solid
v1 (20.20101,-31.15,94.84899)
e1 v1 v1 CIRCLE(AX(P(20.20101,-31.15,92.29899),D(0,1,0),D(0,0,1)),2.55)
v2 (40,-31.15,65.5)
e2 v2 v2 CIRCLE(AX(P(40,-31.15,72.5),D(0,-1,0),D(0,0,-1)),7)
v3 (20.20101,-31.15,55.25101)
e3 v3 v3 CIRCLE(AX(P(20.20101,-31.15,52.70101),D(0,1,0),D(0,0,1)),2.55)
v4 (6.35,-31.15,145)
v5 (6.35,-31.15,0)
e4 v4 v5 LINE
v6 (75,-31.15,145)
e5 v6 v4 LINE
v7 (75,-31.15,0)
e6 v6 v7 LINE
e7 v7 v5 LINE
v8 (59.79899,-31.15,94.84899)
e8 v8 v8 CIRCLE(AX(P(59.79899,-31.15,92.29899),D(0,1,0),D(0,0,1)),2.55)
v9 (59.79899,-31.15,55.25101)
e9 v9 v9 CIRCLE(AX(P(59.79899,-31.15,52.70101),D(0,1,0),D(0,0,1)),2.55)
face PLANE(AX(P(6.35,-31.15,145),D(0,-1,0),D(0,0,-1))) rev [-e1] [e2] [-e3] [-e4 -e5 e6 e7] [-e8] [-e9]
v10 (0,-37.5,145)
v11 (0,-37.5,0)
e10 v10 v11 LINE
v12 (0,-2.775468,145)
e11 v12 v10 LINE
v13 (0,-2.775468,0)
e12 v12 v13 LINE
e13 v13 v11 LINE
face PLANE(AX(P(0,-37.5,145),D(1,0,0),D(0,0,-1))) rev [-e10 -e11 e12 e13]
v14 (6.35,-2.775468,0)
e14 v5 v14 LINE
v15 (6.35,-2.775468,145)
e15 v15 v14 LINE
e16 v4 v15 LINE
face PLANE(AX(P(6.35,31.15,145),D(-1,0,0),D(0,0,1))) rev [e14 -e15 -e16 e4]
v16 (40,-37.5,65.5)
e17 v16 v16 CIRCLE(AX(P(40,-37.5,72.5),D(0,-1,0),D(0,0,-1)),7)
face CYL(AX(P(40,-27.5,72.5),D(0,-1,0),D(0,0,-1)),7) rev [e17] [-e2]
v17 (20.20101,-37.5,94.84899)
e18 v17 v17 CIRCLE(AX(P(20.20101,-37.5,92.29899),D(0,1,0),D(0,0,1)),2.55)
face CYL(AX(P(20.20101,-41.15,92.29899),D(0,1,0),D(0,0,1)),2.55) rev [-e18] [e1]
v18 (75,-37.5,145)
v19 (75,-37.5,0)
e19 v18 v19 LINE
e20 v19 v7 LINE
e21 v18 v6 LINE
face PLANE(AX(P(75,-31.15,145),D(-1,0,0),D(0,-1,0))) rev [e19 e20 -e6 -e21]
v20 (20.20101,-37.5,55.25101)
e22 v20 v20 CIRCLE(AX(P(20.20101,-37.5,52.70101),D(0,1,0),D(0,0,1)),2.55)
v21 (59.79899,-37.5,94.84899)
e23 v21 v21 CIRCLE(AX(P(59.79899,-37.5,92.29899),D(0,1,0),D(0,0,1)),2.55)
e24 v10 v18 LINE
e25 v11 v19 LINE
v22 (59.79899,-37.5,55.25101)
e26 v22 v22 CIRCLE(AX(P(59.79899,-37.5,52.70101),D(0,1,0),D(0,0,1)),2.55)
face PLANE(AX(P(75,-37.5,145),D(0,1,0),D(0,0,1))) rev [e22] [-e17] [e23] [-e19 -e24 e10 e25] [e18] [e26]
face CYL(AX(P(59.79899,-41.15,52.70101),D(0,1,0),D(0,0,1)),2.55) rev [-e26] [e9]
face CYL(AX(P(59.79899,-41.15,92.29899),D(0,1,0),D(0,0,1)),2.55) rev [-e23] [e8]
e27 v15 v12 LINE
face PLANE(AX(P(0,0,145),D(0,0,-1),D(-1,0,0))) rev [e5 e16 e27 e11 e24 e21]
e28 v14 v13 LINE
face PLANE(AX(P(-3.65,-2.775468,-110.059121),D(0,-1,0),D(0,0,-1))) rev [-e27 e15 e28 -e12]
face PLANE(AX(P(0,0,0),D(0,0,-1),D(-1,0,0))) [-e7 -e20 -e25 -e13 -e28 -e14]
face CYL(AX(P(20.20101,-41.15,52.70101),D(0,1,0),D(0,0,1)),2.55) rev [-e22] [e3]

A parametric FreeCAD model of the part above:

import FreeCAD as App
import Part
import Sketcher
from FreeCAD import Vector


def add_polygon(sketch, points):
    """Adds a closed chain of lines whose ends are joined by coincident constraints."""
    first, n = sketch.GeometryCount, len(points)
    for a, b in zip(points, points[1:] + points[:1]):
        sketch.addGeometry(Part.LineSegment(App.Vector(*a, 0), App.Vector(*b, 0)), False)
    for i in range(n):
        sketch.addConstraint(Sketcher.Constraint("Coincident", first + i, 2, first + (i + 1) % n, 1))

doc = App.newDocument("Part")
params = doc.addObject("Spreadsheet::Sheet", "Params")
for row, (alias, value) in enumerate([
    ("sketch1_width", "75 mm"),
    ("sketch1_height", "62.3 mm"),
    ("sketch1_width2", "68.65 mm"),
    ("pad1_length", "145 mm"),
    ("sketch2_height", "145 mm"),
    ("sketch2_width", "68.65 mm"),
    ("pocket1_length", "10 mm"),
    ("sketch3_diameter", "14 mm"),
    ("pocket2_length", "10 mm"),
    ("sketch4_diameter", "5.1 mm"),
    ("pocket3_length", "10 mm"),
    ("pocket4_length", "10 mm"),
], start=1):
    params.set(f"A{row}", alias)
    params.set(f"B{row}", "=" + value)
    params.setAlias(f"B{row}", alias)

body = doc.addObject("PartDesign::Body", "Body")

# Sketch on XY plane
sketch1 = body.newObject("Sketcher::SketchObject", "Sketch")
sketch1.AttachmentSupport = (doc.getObject("XY_Plane"), [""])
sketch1.MapMode = "FlatFace"
add_polygon(sketch1, [(0, 38), (0, -38), (75, -38), (75, -31), (6, -31), (6, 31), (75, 31), (75, 38)])  # lines 0-7
sketch1.addConstraint(Sketcher.Constraint("Vertical", 0))
sketch1.addConstraint(Sketcher.Constraint("Horizontal", 1))
sketch1.addConstraint(Sketcher.Constraint("Vertical", 2))
sketch1.addConstraint(Sketcher.Constraint("Horizontal", 3))
sketch1.addConstraint(Sketcher.Constraint("Vertical", 4))
sketch1.addConstraint(Sketcher.Constraint("Horizontal", 5))
sketch1.addConstraint(Sketcher.Constraint("Vertical", 6))
sketch1.addConstraint(Sketcher.Constraint("Horizontal", 7))
sketch1.addConstraint(Sketcher.Constraint("Symmetric", 0, 2, 7, 2, -1, 1))
sketch1.addConstraint(Sketcher.Constraint("Symmetric", 2, 2, 5, 2, -1))
sketch1.addConstraint(Sketcher.Constraint("Equal", 7, 0))
sketch1.addConstraint(Sketcher.Constraint("DistanceX", 1, 1, 1, 2, 75.0))
sketch1.addConstraint(Sketcher.Constraint("DistanceY", 4, 1, 4, 2, 62.3))
sketch1.addConstraint(Sketcher.Constraint("DistanceX", 3, 2, 3, 1, 68.65))
sketch1.setExpression("Constraints[19]", "Params.sketch1_width")
sketch1.setExpression("Constraints[20]", "Params.sketch1_height")
sketch1.setExpression("Constraints[21]", "Params.sketch1_width2")
pad1 = body.newObject("PartDesign::Pad", "Pad")
pad1.Profile = sketch1
pad1.setExpression("Length", "Params.pad1_length")

# Sketch on XZ plane
sketch2 = body.newObject("Sketcher::SketchObject", "Sketch001")
sketch2.AttachmentSupport = (doc.getObject("XZ_Plane"), [""])
sketch2.MapMode = "FlatFace"
sketch2.AttachmentOffset = App.Placement(Vector(0, 0, -37.5), App.Rotation())
add_polygon(sketch2, [(6, 0), (6, 145), (75, 145), (75, 0)])  # lines 0-3
sketch2.addConstraint(Sketcher.Constraint("Vertical", 0))
sketch2.addConstraint(Sketcher.Constraint("Horizontal", 1))
sketch2.addConstraint(Sketcher.Constraint("Vertical", 2))
sketch2.addConstraint(Sketcher.Constraint("Horizontal", 3))
sketch2.addConstraint(Sketcher.Constraint("PointOnObject", 2, 2, -1))
sketch2.addConstraint(Sketcher.Constraint("DistanceY", 0, 1, 0, 2, 145.0))
sketch2.addConstraint(Sketcher.Constraint("DistanceX", -1, 1, 1, 2, 75.0))
sketch2.addConstraint(Sketcher.Constraint("DistanceX", 1, 1, 1, 2, 68.65))
sketch2.setExpression("Constraints[9]", "Params.sketch2_height")
sketch2.setExpression("Constraints[11]", "Params.sketch2_width")
pocket1 = body.newObject("PartDesign::Pocket", "Pocket")
pocket1.Profile = sketch2
pocket1.setExpression("Length", "Params.pocket1_length")
pocket1.Reversed = True

# Sketch on XZ plane
sketch3 = body.newObject("Sketcher::SketchObject", "Sketch002")
sketch3.AttachmentSupport = (doc.getObject("XZ_Plane"), [""])
sketch3.MapMode = "FlatFace"
sketch3.AttachmentOffset = App.Placement(Vector(0, 0, 37.5), App.Rotation())
sketch3.addGeometry(Part.Circle(Vector(40, 72, 0), Vector(0, 0, 1), 7), False)
sketch3.addConstraint(Sketcher.Constraint("Diameter", 0, 14.0))
sketch3.addConstraint(Sketcher.Constraint("DistanceX", -1, 1, 0, 3, 40.0))
sketch3.addConstraint(Sketcher.Constraint("DistanceY", -1, 1, 0, 3, 72.5))
sketch3.setExpression("Constraints[0]", "Params.sketch3_diameter")
pocket2 = body.newObject("PartDesign::Pocket", "Pocket001")
pocket2.Profile = sketch3
pocket2.setExpression("Length", "Params.pocket2_length")

# Sketch on XZ plane
sketch4 = body.newObject("Sketcher::SketchObject", "Sketch003")
sketch4.AttachmentSupport = (doc.getObject("XZ_Plane"), [""])
sketch4.MapMode = "FlatFace"
sketch4.AttachmentOffset = App.Placement(Vector(0, 0, 31.15), App.Rotation())
sketch4.addGeometry(Part.Circle(Vector(59.8, 52.7, 0), Vector(0, 0, 1), 2.5), False)
sketch4.addGeometry(Part.Circle(Vector(59.8, 92.3, 0), Vector(0, 0, 1), 2.5), False)
sketch4.addGeometry(Part.Circle(Vector(20.2, 92.3, 0), Vector(0, 0, 1), 2.5), False)
sketch4.addGeometry(Part.Circle(Vector(20.2, 52.7, 0), Vector(0, 0, 1), 2.5), False)
sketch4.addConstraint(Sketcher.Constraint("Equal", 0, 1))
sketch4.addConstraint(Sketcher.Constraint("Equal", 1, 2))
sketch4.addConstraint(Sketcher.Constraint("Equal", 2, 3))
sketch4.addConstraint(Sketcher.Constraint("Horizontal", 1, 3, 2, 3))
sketch4.addConstraint(Sketcher.Constraint("Horizontal", 0, 3, 3, 3))
sketch4.addConstraint(Sketcher.Constraint("Vertical", 0, 3, 1, 3))
sketch4.addConstraint(Sketcher.Constraint("Vertical", 2, 3, 3, 3))
sketch4.addConstraint(Sketcher.Constraint("Diameter", 0, 5.1))
sketch4.addConstraint(Sketcher.Constraint("DistanceX", -1, 1, 0, 3, 59.79899))
sketch4.addConstraint(Sketcher.Constraint("DistanceY", -1, 1, 0, 3, 52.70101))
sketch4.addConstraint(Sketcher.Constraint("DistanceY", -1, 1, 1, 3, 92.29899))
sketch4.addConstraint(Sketcher.Constraint("DistanceX", -1, 1, 2, 3, 20.20101))
sketch4.setExpression("Constraints[7]", "Params.sketch4_diameter")
pocket3 = body.newObject("PartDesign::Pocket", "Pocket002")
pocket3.Profile = sketch4
pocket3.setExpression("Length", "Params.pocket3_length")
pocket3.Reversed = True

# Sketch on YZ plane
sketch5 = body.newObject("Sketcher::SketchObject", "Sketch004")
sketch5.AttachmentSupport = (doc.getObject("YZ_Plane"), [""])
sketch5.MapMode = "FlatFace"
sketch5.AttachmentOffset = App.Placement(Vector(0, 0, 6.35), App.Rotation())
add_polygon(sketch5, [(59, 169), (-3, 169), (-3, -110), (59, -110)])  # lines 0-3
sketch5.addConstraint(Sketcher.Constraint("Horizontal", 0))
sketch5.addConstraint(Sketcher.Constraint("Vertical", 1))
sketch5.addConstraint(Sketcher.Constraint("Horizontal", 2))
sketch5.addConstraint(Sketcher.Constraint("Vertical", 3))
sketch5.addConstraint(Sketcher.Constraint("DistanceX", 0, 2, 0, 1, 61.46775))
sketch5.addConstraint(Sketcher.Constraint("DistanceY", 1, 2, 1, 1, 278.618693))
sketch5.addConstraint(Sketcher.Constraint("DistanceX", 0, 2, -1, 1, 2.775468))
sketch5.addConstraint(Sketcher.Constraint("DistanceY", 1, 2, -1, 1, 110.059121))
pocket4 = body.newObject("PartDesign::Pocket", "Pocket003")
pocket4.Profile = sketch5
pocket4.setExpression("Length", "Params.pocket4_length")

doc.recompute()
